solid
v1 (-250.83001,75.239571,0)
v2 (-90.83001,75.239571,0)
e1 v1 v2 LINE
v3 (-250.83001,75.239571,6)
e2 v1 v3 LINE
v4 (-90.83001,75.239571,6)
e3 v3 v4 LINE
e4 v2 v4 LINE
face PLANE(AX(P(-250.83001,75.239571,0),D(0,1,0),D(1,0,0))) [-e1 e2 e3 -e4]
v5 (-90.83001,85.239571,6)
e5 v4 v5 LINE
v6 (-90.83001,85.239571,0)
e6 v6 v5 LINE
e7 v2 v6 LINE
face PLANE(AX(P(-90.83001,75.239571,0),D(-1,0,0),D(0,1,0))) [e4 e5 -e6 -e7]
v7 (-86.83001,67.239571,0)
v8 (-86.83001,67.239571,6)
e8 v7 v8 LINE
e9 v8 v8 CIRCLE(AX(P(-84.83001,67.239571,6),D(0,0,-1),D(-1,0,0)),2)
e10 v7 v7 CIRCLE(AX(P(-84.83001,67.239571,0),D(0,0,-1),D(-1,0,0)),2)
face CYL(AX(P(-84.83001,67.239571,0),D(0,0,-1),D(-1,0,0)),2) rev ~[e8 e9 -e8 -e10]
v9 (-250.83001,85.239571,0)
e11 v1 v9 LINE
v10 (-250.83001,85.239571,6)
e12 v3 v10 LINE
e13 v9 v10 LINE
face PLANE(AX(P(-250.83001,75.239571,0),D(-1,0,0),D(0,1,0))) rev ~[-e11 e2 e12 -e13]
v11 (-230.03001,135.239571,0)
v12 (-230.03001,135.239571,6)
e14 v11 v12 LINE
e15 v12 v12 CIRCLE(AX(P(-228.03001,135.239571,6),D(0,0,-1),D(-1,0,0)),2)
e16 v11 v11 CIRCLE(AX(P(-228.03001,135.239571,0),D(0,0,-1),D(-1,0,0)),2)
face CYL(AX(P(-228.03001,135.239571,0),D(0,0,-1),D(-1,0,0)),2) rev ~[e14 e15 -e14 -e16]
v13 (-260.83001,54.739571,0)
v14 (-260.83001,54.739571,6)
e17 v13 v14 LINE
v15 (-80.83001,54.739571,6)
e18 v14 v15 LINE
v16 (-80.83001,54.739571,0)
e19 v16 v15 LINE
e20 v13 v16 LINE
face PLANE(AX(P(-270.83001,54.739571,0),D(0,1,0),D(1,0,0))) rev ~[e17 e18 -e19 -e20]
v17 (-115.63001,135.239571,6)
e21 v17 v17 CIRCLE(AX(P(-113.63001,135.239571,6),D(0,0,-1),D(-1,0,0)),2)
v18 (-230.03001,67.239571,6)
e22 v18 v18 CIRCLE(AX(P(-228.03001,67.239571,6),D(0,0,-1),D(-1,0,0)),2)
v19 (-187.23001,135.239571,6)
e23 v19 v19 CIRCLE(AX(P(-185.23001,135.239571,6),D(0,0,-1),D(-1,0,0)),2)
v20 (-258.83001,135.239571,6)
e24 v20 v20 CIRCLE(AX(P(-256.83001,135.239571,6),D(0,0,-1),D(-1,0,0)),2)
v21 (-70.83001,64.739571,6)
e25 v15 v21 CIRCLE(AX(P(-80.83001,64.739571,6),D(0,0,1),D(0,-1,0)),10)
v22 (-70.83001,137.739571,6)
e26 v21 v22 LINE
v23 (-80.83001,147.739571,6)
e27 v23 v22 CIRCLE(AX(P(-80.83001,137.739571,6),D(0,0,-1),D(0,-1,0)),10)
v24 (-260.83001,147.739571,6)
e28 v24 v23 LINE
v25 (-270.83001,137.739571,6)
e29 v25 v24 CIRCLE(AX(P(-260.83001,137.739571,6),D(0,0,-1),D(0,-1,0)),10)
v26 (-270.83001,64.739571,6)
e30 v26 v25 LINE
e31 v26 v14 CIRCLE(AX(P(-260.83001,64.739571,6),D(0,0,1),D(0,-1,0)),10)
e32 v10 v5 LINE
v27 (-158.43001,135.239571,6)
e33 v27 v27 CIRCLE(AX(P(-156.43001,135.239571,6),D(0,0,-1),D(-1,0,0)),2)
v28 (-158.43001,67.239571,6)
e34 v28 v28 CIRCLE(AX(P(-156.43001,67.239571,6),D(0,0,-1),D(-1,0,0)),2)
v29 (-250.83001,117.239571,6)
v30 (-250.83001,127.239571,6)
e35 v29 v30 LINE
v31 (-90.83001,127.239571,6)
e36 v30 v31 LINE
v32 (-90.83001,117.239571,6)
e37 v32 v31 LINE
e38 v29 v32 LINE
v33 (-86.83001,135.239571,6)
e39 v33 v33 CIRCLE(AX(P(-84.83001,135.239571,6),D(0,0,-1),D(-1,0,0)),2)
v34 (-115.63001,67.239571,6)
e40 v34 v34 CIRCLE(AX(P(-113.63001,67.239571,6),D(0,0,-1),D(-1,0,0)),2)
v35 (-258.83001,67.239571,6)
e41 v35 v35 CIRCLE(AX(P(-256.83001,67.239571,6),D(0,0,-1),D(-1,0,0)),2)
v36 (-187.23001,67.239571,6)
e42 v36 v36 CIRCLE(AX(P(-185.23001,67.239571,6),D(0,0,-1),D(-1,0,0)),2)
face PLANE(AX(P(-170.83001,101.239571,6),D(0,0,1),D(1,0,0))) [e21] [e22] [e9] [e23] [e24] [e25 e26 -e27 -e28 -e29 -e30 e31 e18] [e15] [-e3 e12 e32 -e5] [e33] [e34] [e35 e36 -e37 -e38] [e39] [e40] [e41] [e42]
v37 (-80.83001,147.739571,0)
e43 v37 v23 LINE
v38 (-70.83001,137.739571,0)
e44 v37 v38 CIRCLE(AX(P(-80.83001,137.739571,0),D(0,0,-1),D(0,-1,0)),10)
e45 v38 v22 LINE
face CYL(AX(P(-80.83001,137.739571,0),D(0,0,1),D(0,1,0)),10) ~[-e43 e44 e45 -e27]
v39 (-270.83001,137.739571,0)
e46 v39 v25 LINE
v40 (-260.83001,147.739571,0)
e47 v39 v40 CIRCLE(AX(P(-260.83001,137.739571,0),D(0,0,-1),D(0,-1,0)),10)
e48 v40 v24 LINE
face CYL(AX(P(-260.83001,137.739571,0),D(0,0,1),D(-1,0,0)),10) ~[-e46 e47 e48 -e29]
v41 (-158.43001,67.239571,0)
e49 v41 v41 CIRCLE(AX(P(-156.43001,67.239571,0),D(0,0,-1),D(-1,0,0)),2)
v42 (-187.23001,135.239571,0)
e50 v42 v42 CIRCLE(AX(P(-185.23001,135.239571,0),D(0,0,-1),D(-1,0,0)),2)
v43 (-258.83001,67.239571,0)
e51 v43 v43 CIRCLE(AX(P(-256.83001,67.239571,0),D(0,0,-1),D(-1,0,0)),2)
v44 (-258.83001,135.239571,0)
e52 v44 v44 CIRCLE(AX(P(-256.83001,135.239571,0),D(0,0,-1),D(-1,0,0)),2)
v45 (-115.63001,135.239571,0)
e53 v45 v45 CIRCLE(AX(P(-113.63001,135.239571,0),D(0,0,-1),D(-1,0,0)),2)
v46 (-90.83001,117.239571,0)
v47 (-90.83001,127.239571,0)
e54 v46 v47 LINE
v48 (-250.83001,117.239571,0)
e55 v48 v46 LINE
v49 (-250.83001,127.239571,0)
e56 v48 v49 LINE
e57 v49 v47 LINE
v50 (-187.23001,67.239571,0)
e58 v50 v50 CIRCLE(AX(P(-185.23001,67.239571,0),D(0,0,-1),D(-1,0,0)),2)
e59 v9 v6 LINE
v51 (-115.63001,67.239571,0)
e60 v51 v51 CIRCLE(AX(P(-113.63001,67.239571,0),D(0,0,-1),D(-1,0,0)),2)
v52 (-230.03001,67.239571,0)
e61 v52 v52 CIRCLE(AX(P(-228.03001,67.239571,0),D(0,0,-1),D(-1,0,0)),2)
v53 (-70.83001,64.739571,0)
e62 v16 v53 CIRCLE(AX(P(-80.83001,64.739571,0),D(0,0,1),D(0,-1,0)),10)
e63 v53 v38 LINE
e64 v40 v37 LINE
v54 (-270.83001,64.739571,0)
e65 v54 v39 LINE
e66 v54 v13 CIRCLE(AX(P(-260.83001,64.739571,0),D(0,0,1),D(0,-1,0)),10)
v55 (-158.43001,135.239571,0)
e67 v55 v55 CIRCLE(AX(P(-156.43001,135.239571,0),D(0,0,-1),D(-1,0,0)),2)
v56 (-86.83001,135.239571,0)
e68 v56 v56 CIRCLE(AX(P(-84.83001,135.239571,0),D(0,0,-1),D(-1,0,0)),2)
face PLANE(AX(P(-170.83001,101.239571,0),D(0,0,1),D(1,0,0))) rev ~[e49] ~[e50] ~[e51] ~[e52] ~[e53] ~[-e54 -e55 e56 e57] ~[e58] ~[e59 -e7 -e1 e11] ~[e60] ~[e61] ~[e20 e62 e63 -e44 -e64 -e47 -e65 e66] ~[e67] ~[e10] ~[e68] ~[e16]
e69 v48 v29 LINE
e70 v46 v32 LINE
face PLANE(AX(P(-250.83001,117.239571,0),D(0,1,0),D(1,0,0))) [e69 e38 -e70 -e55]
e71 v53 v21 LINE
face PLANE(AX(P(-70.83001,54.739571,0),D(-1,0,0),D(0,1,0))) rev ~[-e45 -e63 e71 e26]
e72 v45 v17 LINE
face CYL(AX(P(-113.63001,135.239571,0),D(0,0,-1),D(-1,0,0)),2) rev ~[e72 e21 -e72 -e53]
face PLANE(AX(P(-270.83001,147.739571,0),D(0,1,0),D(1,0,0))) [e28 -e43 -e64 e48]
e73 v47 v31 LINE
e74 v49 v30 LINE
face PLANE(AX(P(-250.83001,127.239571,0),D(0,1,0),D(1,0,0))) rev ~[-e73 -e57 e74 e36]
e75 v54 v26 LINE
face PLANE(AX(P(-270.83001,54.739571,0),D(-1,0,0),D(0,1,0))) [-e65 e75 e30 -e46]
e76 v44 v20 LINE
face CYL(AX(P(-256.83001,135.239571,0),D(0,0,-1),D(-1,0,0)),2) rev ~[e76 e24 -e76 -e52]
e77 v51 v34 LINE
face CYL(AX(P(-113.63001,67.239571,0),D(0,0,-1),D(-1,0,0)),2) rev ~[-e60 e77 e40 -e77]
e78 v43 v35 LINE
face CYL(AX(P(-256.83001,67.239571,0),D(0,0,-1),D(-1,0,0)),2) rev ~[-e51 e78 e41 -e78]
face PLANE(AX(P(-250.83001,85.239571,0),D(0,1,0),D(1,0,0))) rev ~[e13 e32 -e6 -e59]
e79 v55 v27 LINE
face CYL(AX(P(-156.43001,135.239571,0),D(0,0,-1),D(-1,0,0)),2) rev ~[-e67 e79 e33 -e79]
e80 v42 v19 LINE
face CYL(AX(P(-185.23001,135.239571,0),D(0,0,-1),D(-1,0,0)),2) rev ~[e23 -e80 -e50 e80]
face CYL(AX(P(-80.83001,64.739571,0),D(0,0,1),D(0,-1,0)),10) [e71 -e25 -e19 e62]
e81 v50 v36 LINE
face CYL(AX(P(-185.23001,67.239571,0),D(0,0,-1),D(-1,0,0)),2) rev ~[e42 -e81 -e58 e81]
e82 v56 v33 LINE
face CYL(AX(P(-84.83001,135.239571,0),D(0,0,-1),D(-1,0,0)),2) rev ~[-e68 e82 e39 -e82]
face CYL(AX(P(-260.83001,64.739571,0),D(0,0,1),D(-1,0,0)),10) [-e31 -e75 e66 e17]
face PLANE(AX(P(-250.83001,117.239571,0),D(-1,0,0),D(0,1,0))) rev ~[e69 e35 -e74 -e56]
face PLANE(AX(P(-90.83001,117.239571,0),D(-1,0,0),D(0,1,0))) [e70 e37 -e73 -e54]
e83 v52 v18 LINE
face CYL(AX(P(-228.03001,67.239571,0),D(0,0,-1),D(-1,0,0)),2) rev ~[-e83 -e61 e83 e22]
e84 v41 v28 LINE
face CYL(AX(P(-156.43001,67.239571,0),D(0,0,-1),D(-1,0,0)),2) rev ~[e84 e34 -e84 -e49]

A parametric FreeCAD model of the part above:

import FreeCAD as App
import Part
import Sketcher

V = App.Vector
Q = App.Units.Quantity


def edges_at(feature, points):
    """Names of the edges that pass closest to the given points."""
    edges = feature.Shape.Edges
    near = lambda p: min(range(len(edges)), key=lambda i: edges[i].distToShape(Part.Vertex(*p))[0])
    return sorted({f"Edge{near(p) + 1}" for p in points})


def add_polygon(sketch, points):
    """Adds a closed chain of lines whose ends are joined by coincident constraints."""
    first, n = sketch.GeometryCount, len(points)
    for a, b in zip(points, points[1:] + points[:1]):
        sketch.addGeometry(Part.LineSegment(App.Vector(*a, 0), App.Vector(*b, 0)), False)
    for i in range(n):
        sketch.addConstraint(Sketcher.Constraint("Coincident", first + i, 2, first + (i + 1) % n, 1))

doc = App.newDocument("Part")
body = doc.addObject("PartDesign::Body", "Body")

# Sketch on XY plane
sketch1 = body.newObject("Sketcher::SketchObject", "Sketch")
sketch1.AttachmentSupport = (doc.getObject("XY_Plane"), [""])
sketch1.MapMode = "FlatFace"
add_polygon(sketch1, [(-271, 148), (-271, 55), (-71, 55), (-71, 148)])  # lines 0-3
add_polygon(sketch1, [(-91, 75), (-251, 75), (-251, 85), (-91, 85)])  # lines 4-7
add_polygon(sketch1, [(-91, 117), (-251, 117), (-251, 127), (-91, 127)])  # lines 8-11
sketch1.addConstraint(Sketcher.Constraint("Vertical", 0))
sketch1.addConstraint(Sketcher.Constraint("Horizontal", 1))
sketch1.addConstraint(Sketcher.Constraint("Vertical", 2))
sketch1.addConstraint(Sketcher.Constraint("Horizontal", 3))
sketch1.addConstraint(Sketcher.Constraint("Horizontal", 4))
sketch1.addConstraint(Sketcher.Constraint("Vertical", 5))
sketch1.addConstraint(Sketcher.Constraint("Horizontal", 6))
sketch1.addConstraint(Sketcher.Constraint("Vertical", 7))
sketch1.addConstraint(Sketcher.Constraint("Horizontal", 8))
sketch1.addConstraint(Sketcher.Constraint("Vertical", 9))
sketch1.addConstraint(Sketcher.Constraint("Horizontal", 10))
sketch1.addConstraint(Sketcher.Constraint("Vertical", 11))
sketch1.addConstraint(Sketcher.Constraint("Vertical", 5, 2, 8, 2))
sketch1.addConstraint(Sketcher.Constraint("Vertical", 7, 2, 10, 2))
sketch1.addConstraint(Sketcher.Constraint("Equal", 7, 9))
sketch1.addConstraint(Sketcher.Constraint("DistanceX", 1, 1, 1, 2, Q("200 mm")))
sketch1.addConstraint(Sketcher.Constraint("DistanceX", 4, 2, 4, 1, Q("160 mm")))
sketch1.addConstraint(Sketcher.Constraint("DistanceY", 0, 2, 0, 1, Q("93 mm")))
sketch1.addConstraint(Sketcher.Constraint("DistanceY", 5, 1, 5, 2, Q("10 mm")))
sketch1.addConstraint(Sketcher.Constraint("DistanceX", 0, 2, 4, 2, Q("20 mm")))
sketch1.addConstraint(Sketcher.Constraint("DistanceY", 5, 2, 8, 2, Q("32 mm")))
sketch1.addConstraint(Sketcher.Constraint("DistanceY", 0, 2, 4, 2, Q("20.5 mm")))
sketch1.addConstraint(Sketcher.Constraint("DistanceX", 0, 2, -1, 1, Q("270.83001 mm")))
sketch1.addConstraint(Sketcher.Constraint("DistanceY", -1, 1, 0, 2, Q("54.739571 mm")))
pad1 = body.newObject("PartDesign::Pad", "Pad")
pad1.Profile = sketch1
pad1.Length = 6

# Sketch on XY plane
sketch2 = body.newObject("Sketcher::SketchObject", "Sketch001")
sketch2.AttachmentSupport = (doc.getObject("XY_Plane"), [""])
sketch2.MapMode = "FlatFace"
sketch2.addGeometry(Part.Circle(V(-84.8, 135.2, 0), V(0, 0, 1), 2), False)
sketch2.addGeometry(Part.Circle(V(-113.6, 135.2, 0), V(0, 0, 1), 2), False)
sketch2.addGeometry(Part.Circle(V(-156.4, 135.2, 0), V(0, 0, 1), 2), False)
sketch2.addGeometry(Part.Circle(V(-185.2, 135.2, 0), V(0, 0, 1), 2), False)
sketch2.addGeometry(Part.Circle(V(-228, 135.2, 0), V(0, 0, 1), 2), False)
sketch2.addGeometry(Part.Circle(V(-256.8, 135.2, 0), V(0, 0, 1), 2), False)
sketch2.addGeometry(Part.Circle(V(-84.8, 67.2, 0), V(0, 0, 1), 2), False)
sketch2.addGeometry(Part.Circle(V(-113.6, 67.2, 0), V(0, 0, 1), 2), False)
sketch2.addGeometry(Part.Circle(V(-156.4, 67.2, 0), V(0, 0, 1), 2), False)
sketch2.addGeometry(Part.Circle(V(-185.2, 67.2, 0), V(0, 0, 1), 2), False)
sketch2.addGeometry(Part.Circle(V(-228, 67.2, 0), V(0, 0, 1), 2), False)
sketch2.addGeometry(Part.Circle(V(-256.8, 67.2, 0), V(0, 0, 1), 2), False)
sketch2.addConstraint(Sketcher.Constraint("Equal", 0, 1))
sketch2.addConstraint(Sketcher.Constraint("Equal", 1, 2))
sketch2.addConstraint(Sketcher.Constraint("Equal", 2, 3))
sketch2.addConstraint(Sketcher.Constraint("Equal", 3, 4))
sketch2.addConstraint(Sketcher.Constraint("Equal", 4, 5))
sketch2.addConstraint(Sketcher.Constraint("Equal", 5, 6))
sketch2.addConstraint(Sketcher.Constraint("Equal", 6, 7))
sketch2.addConstraint(Sketcher.Constraint("Equal", 7, 8))
sketch2.addConstraint(Sketcher.Constraint("Equal", 8, 9))
sketch2.addConstraint(Sketcher.Constraint("Equal", 9, 10))
sketch2.addConstraint(Sketcher.Constraint("Equal", 10, 11))
sketch2.addConstraint(Sketcher.Constraint("Horizontal", 0, 3, 1, 3))
sketch2.addConstraint(Sketcher.Constraint("Horizontal", 1, 3, 2, 3))
sketch2.addConstraint(Sketcher.Constraint("Horizontal", 2, 3, 3, 3))
sketch2.addConstraint(Sketcher.Constraint("Horizontal", 3, 3, 4, 3))
sketch2.addConstraint(Sketcher.Constraint("Horizontal", 4, 3, 5, 3))
sketch2.addConstraint(Sketcher.Constraint("Horizontal", 6, 3, 7, 3))
sketch2.addConstraint(Sketcher.Constraint("Horizontal", 7, 3, 8, 3))
sketch2.addConstraint(Sketcher.Constraint("Horizontal", 8, 3, 9, 3))
sketch2.addConstraint(Sketcher.Constraint("Horizontal", 9, 3, 10, 3))
sketch2.addConstraint(Sketcher.Constraint("Horizontal", 10, 3, 11, 3))
sketch2.addConstraint(Sketcher.Constraint("Vertical", 0, 3, 6, 3))
sketch2.addConstraint(Sketcher.Constraint("Vertical", 1, 3, 7, 3))
sketch2.addConstraint(Sketcher.Constraint("Vertical", 2, 3, 8, 3))
sketch2.addConstraint(Sketcher.Constraint("Vertical", 3, 3, 9, 3))
sketch2.addConstraint(Sketcher.Constraint("Vertical", 4, 3, 10, 3))
sketch2.addConstraint(Sketcher.Constraint("Vertical", 5, 3, 11, 3))
sketch2.addConstraint(Sketcher.Constraint("Diameter", 0, Q("4 mm")))
sketch2.addConstraint(Sketcher.Constraint("DistanceX", 5, 3, 0, 3, Q("172 mm")))
sketch2.addConstraint(Sketcher.Constraint("DistanceY", 6, 3, 0, 3, Q("68 mm")))
sketch2.addConstraint(Sketcher.Constraint("DistanceX", 1, 3, 0, 3, Q("28.8 mm")))
sketch2.addConstraint(Sketcher.Constraint("DistanceX", 2, 3, 1, 3, Q("42.8 mm")))
sketch2.addConstraint(Sketcher.Constraint("DistanceX", 3, 3, 2, 3, Q("28.8 mm")))
sketch2.addConstraint(Sketcher.Constraint("DistanceX", 4, 3, 3, 3, Q("42.8 mm")))
sketch2.addConstraint(Sketcher.Constraint("DistanceX", 0, 3, -1, 1, Q("84.83001 mm")))
sketch2.addConstraint(Sketcher.Constraint("DistanceY", -1, 1, 0, 3, Q("135.239571 mm")))
pocket1 = body.newObject("PartDesign::Pocket", "Pocket")
pocket1.Profile = sketch2
pocket1.Length = 6
pocket1.Reversed = True
doc.recompute()

fillet = body.newObject("PartDesign::Fillet", "Fillet")
fillet.Base = (pocket1, edges_at(pocket1, [
    (-70.83, 54.74, 3),
    (-270.83, 54.74, 3),
    (-270.83, 147.74, 3),
    (-70.83, 147.74, 3),
]))
fillet.Radius = 10

doc.recompute()
